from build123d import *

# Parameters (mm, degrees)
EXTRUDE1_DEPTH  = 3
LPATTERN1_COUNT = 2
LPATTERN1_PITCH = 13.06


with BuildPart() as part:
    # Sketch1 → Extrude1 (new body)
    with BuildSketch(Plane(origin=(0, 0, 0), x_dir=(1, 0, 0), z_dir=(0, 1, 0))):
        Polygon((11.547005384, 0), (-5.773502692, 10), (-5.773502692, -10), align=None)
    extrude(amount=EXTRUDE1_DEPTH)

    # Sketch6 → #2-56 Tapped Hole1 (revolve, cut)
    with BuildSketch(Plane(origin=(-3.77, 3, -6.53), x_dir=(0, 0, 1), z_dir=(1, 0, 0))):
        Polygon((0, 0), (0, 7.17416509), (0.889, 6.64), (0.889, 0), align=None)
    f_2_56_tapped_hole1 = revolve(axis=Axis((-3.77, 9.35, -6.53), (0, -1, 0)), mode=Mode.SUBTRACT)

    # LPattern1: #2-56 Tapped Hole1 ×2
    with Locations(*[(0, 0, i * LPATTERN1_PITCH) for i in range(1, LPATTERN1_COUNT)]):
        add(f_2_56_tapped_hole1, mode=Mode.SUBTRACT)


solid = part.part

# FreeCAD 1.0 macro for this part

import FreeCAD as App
import Part
import Sketcher
from FreeCAD import Vector
Q = App.Units.Quantity


def add_polygon(sketch, points):
    """Adds a closed chain of lines whose ends are joined by coincident constraints."""
    first, n = sketch.GeometryCount, len(points)
    for a, b in zip(points, points[1:] + points[:1]):
        sketch.addGeometry(Part.LineSegment(App.Vector(*a, 0), App.Vector(*b, 0)), False)
    for i in range(n):
        sketch.addConstraint(Sketcher.Constraint("Coincident", first + i, 2, first + (i + 1) % n, 1))

doc = App.newDocument("Part")
body = doc.addObject("PartDesign::Body", "Body")

# Sketch on XZ plane
sketch1 = doc.addObject("Sketcher::SketchObject", "Sketch")
body.addObject(sketch1)
sketch1.AttachmentSupport = (doc.XZ_Plane, [""])
sketch1.MapMode = "FlatFace"
add_polygon(sketch1, [(12, 0), (-6, -10), (-6, 10)])  # lines 0-2
sketch1.addConstraint(Sketcher.Constraint("Vertical", 1))
sketch1.addConstraint(Sketcher.Constraint("PointOnObject", 2, 2, -1))
sketch1.addConstraint(Sketcher.Constraint("Equal", 0, 2))
sketch1.addConstraint(Sketcher.Constraint("DistanceY", 1, 1, 1, 2, Q("20 mm")))
sketch1.addConstraint(Sketcher.Constraint("Angle", 0, Q("-150 deg")))
sketch1.addConstraint(Sketcher.Constraint("DistanceX", 0, 2, -1, 1, Q("5.773503 mm")))
pad1 = doc.addObject("PartDesign::Pad", "Pad")
body.addObject(pad1)
pad1.Profile = sketch1
pad1.Length = 3
pad1.Reversed = True

# Sketch on YZ plane
sketch2 = doc.addObject("Sketcher::SketchObject", "Sketch001")
body.addObject(sketch2)
sketch2.AttachmentSupport = (doc.YZ_Plane, [""])
sketch2.MapMode = "FlatFace"
sketch2.AttachmentOffset = App.Placement(Vector(0, 0, -3.77), App.Rotation())
add_polygon(sketch2, [(-4.2, -6.5), (3, -6.5), (3, -5.6), (-3.6, -5.6)])  # lines 0-3
sketch2.addGeometry(Part.LineSegment(Vector(3, -6.5, 0), Vector(-4.2, -6.5, 0)), True)  # axis
sketch2.addConstraint(Sketcher.Constraint("Horizontal", 0))
sketch2.addConstraint(Sketcher.Constraint("Vertical", 1))
sketch2.addConstraint(Sketcher.Constraint("Horizontal", 2))
sketch2.addConstraint(Sketcher.Constraint("Horizontal", 4))
sketch2.addConstraint(Sketcher.Constraint("Coincident", 4, 1, 0, 2))
sketch2.addConstraint(Sketcher.Constraint("Equal", 0, 4))
sketch2.addConstraint(Sketcher.Constraint("Angle", 3, Q("-121 deg")))
sketch2.addConstraint(Sketcher.Constraint("DistanceX", -1, 1, 0, 2, Q("3 mm")))
sketch2.addConstraint(Sketcher.Constraint("DistanceX", 2, 2, 2, 1, Q("6.64 mm")))
sketch2.addConstraint(Sketcher.Constraint("DistanceY", 1, 1, 1, 2, Q("0.889 mm")))
sketch2.addConstraint(Sketcher.Constraint("DistanceY", 0, 2, -1, 1, Q("6.53 mm")))
groove = doc.addObject("PartDesign::Groove", "Groove")
body.addObject(groove)
groove.Profile = sketch2
groove.ReferenceAxis = (sketch2, ["Axis0"])
groove.Angle = 360
doc.recompute()

linearpattern = doc.addObject("PartDesign::LinearPattern", "LinearPattern")
body.addObject(linearpattern)
linearpattern.Originals = [groove]
linearpattern.Direction = (doc.Z_Axis, [""])
linearpattern.Mode = "offset"
linearpattern.Offset = 13.06
linearpattern.Occurrences = 2
body.Tip = linearpattern

doc.recompute()
